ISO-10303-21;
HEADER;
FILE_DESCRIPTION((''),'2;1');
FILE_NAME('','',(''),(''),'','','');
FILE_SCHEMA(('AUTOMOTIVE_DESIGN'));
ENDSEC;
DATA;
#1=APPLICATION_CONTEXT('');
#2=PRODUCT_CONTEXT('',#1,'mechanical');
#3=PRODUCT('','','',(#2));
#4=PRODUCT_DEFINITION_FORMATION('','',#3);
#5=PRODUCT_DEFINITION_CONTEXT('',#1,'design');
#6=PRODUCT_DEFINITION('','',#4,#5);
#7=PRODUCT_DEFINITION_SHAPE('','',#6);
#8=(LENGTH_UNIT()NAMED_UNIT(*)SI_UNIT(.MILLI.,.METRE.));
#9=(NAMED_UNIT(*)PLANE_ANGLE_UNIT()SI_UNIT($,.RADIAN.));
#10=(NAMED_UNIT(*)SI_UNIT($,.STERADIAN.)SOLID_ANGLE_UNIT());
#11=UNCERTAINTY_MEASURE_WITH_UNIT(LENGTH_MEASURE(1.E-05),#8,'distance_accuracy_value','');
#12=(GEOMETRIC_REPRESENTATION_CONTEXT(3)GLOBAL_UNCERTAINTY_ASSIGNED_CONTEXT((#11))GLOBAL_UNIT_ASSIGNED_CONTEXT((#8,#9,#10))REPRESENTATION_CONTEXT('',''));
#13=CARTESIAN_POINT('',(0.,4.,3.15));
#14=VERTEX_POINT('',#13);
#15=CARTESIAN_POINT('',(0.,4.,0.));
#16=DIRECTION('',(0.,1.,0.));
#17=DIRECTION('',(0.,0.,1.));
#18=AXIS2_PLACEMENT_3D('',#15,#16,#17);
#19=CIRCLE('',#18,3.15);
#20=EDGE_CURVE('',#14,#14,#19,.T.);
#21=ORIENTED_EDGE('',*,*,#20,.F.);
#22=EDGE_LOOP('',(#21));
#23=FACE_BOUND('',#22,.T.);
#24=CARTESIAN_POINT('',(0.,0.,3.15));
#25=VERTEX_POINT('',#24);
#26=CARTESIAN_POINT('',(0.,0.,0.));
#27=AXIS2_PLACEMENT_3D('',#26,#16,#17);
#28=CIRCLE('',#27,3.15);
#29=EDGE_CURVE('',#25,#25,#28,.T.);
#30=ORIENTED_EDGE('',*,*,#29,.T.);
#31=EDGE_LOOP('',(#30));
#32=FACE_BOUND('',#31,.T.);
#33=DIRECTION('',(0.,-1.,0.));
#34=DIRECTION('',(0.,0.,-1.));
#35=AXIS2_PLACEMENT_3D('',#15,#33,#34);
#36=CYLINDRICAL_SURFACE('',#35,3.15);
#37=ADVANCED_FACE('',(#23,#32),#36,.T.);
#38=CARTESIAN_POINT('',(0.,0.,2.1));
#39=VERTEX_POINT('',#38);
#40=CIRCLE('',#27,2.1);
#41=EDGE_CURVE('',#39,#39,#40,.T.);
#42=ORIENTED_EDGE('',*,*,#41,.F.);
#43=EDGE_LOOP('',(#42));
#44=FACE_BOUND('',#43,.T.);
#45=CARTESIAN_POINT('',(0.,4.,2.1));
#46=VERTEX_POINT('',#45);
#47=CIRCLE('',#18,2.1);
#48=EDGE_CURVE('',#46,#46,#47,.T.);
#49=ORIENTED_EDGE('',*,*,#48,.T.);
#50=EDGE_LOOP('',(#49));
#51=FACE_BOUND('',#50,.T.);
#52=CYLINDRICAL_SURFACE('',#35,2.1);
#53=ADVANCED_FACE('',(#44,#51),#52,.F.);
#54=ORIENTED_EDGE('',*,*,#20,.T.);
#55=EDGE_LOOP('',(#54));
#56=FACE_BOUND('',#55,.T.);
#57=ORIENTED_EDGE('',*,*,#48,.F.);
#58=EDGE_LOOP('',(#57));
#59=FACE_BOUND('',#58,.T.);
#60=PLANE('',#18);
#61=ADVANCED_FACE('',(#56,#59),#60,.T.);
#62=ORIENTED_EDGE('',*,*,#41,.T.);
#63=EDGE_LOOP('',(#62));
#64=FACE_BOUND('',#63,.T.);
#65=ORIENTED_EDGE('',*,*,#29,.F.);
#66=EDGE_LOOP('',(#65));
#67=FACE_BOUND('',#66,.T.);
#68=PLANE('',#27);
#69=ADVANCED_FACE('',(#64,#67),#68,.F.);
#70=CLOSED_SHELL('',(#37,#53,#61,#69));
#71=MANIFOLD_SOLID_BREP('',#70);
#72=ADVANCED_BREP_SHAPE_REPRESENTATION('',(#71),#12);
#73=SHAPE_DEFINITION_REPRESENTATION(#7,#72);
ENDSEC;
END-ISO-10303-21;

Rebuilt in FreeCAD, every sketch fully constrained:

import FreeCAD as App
import Part
import Sketcher
from FreeCAD import Vector

doc = App.newDocument("Part")
body = doc.addObject("PartDesign::Body", "Body")

sketch1 = doc.addObject("Sketcher::SketchObject", "Sketch")
body.addObject(sketch1)
sketch1.AttachmentSupport = (doc.XZ_Plane, [""])
sketch1.MapMode = "FlatFace"
sketch1.addGeometry(Part.Circle(Vector(0, 0, 0), Vector(0, 0, 1), 3.1), False)
sketch1.addGeometry(Part.Circle(Vector(0, 0, 0), Vector(0, 0, 1), 2.1), False)
sketch1.addConstraint(Sketcher.Constraint("Coincident", 0, 3, -1, 1))
sketch1.addConstraint(Sketcher.Constraint("Coincident", 1, 3, -1, 1))
sketch1.addConstraint(Sketcher.Constraint("Diameter", 0, 6.3))
sketch1.addConstraint(Sketcher.Constraint("Diameter", 1, 4.2))
pad1 = doc.addObject("PartDesign::Pad", "Pad")
body.addObject(pad1)
pad1.Profile = sketch1
pad1.Length = 4
pad1.Reversed = True

doc.recompute()
